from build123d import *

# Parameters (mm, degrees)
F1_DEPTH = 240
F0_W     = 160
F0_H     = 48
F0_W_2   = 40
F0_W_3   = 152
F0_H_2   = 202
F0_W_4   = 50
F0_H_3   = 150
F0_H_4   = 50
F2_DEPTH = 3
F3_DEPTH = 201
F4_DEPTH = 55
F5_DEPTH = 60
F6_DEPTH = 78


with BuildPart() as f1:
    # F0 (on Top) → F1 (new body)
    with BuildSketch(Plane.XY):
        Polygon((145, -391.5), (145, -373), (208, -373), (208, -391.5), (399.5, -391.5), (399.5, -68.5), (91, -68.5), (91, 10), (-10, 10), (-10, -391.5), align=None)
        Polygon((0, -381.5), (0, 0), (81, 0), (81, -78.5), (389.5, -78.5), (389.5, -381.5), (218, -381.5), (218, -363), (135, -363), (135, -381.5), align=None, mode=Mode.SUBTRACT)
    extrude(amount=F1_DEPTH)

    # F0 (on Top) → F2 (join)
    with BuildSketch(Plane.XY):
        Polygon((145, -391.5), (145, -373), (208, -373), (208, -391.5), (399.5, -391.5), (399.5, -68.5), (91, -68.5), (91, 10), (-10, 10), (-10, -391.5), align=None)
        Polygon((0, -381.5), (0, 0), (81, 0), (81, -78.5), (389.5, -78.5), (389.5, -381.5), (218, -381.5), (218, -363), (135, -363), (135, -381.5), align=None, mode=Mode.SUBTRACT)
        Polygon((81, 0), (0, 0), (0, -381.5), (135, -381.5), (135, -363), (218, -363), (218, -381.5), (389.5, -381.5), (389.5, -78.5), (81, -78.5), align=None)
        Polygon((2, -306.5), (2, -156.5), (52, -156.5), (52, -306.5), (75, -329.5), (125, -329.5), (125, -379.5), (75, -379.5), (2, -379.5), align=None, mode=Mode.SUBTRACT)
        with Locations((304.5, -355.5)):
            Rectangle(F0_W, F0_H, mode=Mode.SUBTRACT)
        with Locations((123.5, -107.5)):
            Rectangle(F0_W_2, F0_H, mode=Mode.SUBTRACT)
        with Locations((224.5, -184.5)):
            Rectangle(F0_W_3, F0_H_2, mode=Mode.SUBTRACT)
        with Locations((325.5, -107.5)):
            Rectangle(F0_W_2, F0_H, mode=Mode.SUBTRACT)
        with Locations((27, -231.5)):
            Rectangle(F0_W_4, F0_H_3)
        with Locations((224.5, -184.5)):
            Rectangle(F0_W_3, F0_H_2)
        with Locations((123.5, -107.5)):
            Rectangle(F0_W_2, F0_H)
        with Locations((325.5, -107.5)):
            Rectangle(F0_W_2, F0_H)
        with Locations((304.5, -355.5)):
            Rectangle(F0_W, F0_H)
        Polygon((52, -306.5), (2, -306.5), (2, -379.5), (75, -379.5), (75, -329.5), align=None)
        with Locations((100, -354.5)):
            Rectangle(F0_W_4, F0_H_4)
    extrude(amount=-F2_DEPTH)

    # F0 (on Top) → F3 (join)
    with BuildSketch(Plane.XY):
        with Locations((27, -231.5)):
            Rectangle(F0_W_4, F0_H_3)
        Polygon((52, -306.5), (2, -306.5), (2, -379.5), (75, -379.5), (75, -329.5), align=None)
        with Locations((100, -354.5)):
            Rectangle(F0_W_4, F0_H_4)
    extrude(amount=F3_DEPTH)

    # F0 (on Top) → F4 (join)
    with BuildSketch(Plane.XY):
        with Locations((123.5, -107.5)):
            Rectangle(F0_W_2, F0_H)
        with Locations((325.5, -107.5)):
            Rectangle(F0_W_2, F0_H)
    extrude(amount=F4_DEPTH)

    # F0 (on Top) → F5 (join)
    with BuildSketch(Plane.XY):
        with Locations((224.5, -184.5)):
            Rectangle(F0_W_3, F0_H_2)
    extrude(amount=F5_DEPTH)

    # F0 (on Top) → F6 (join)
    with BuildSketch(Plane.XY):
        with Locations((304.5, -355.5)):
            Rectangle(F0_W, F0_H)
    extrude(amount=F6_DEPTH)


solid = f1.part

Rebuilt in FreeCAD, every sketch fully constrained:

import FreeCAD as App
import Part
import Sketcher

V = App.Vector


def add_polygon(sketch, points):
    """Adds a closed chain of lines whose ends are joined by coincident constraints."""
    first, n = sketch.GeometryCount, len(points)
    for a, b in zip(points, points[1:] + points[:1]):
        sketch.addGeometry(Part.LineSegment(App.Vector(*a, 0), App.Vector(*b, 0)), False)
    for i in range(n):
        sketch.addConstraint(Sketcher.Constraint("Coincident", first + i, 2, first + (i + 1) % n, 1))

doc = App.newDocument("Part")
body = doc.addObject("PartDesign::Body", "Body")

sketch1 = doc.addObject("Sketcher::SketchObject", "Sketch")
body.addObject(sketch1)
sketch1.AttachmentSupport = (doc.XY_Plane, [""])
sketch1.MapMode = "FlatFace"
add_polygon(sketch1, [(145, -392), (145, -373), (208, -373), (208, -392), (400, -392), (400, -68), (91, -68), (91, 10), (-10, 10), (-10, -392)])
add_polygon(sketch1, [(135, -382), (0, -382), (0, 0), (81, 0), (81, -78), (390, -78), (390, -382), (218, -382), (218, -363), (135, -363)])
sketch1.addConstraint([
    Sketcher.Constraint("Vertical", 0),
    Sketcher.Constraint("Horizontal", 1),
    Sketcher.Constraint("Vertical", 2),
    Sketcher.Constraint("Horizontal", 3),
    Sketcher.Constraint("Vertical", 4),
    Sketcher.Constraint("Horizontal", 5),
    Sketcher.Constraint("Vertical", 6),
    Sketcher.Constraint("Horizontal", 7),
    Sketcher.Constraint("Vertical", 8),
    Sketcher.Constraint("Horizontal", 9),
    Sketcher.Constraint("Horizontal", 10),
    Sketcher.Constraint("Vertical", 11),
    Sketcher.Constraint("Horizontal", 12),
    Sketcher.Constraint("Vertical", 13),
    Sketcher.Constraint("Horizontal", 14),
    Sketcher.Constraint("Vertical", 15),
    Sketcher.Constraint("Horizontal", 16),
    Sketcher.Constraint("Vertical", 17),
    Sketcher.Constraint("Horizontal", 18),
    Sketcher.Constraint("Vertical", 19),
    Sketcher.Constraint("Coincident", 11, 2, -1, 1),
    Sketcher.Constraint("Horizontal", 3, 2, 8, 2),
    Sketcher.Constraint("Horizontal", 10, 2, 15, 2),
    Sketcher.Constraint("Equal", 5, 14),
    Sketcher.Constraint("Equal", 6, 13),
    Sketcher.Constraint("Equal", 2, 17),
    Sketcher.Constraint("DistanceX", 1, 1, 1, 2, 63.0),
    Sketcher.Constraint("DistanceX", 7, 2, 7, 1, 101.0),
    Sketcher.Constraint("DistanceX", 9, 1, 9, 2, 155.0),
    Sketcher.Constraint("DistanceX", 10, 2, 10, 1, 135.0),
    Sketcher.Constraint("DistanceX", 12, 1, 12, 2, 81.0),
    Sketcher.Constraint("DistanceX", 18, 2, 18, 1, 83.0),
    Sketcher.Constraint("DistanceY", 4, 1, 4, 2, 323.0),
    Sketcher.Constraint("DistanceY", 15, 2, 15, 1, 303.0),
    Sketcher.Constraint("DistanceX", 3, 1, 3, 2, 191.5),
    Sketcher.Constraint("DistanceY", 0, 1, 0, 2, 18.5),
    Sketcher.Constraint("DistanceY", 6, 1, 6, 2, 78.5),
    Sketcher.Constraint("DistanceX", -1, 1, 0, 2, 145.0),
    Sketcher.Constraint("DistanceY", 0, 2, -1, 1, 373.0),
])
pad1 = doc.addObject("PartDesign::Pad", "Pad")
body.addObject(pad1)
pad1.Profile = sketch1
pad1.Length = 240

sketch2 = doc.addObject("Sketcher::SketchObject", "Sketch001")
body.addObject(sketch2)
sketch2.AttachmentSupport = (doc.XY_Plane, [""])
sketch2.MapMode = "FlatFace"
add_polygon(sketch2, [(145, -392), (145, -373), (208, -373), (208, -392), (400, -392), (400, -68), (91, -68), (91, 10), (-10, 10), (-10, -392)])
sketch2.addConstraint([
    Sketcher.Constraint("Vertical", 0),
    Sketcher.Constraint("Horizontal", 1),
    Sketcher.Constraint("Vertical", 2),
    Sketcher.Constraint("Horizontal", 3),
    Sketcher.Constraint("Vertical", 4),
    Sketcher.Constraint("Horizontal", 5),
    Sketcher.Constraint("Vertical", 6),
    Sketcher.Constraint("Horizontal", 7),
    Sketcher.Constraint("Vertical", 8),
    Sketcher.Constraint("Horizontal", 9),
    Sketcher.Constraint("Horizontal", 3, 2, 8, 2),
    Sketcher.Constraint("DistanceX", 1, 1, 1, 2, 63.0),
    Sketcher.Constraint("DistanceX", 7, 2, 7, 1, 101.0),
    Sketcher.Constraint("DistanceX", 9, 1, 9, 2, 155.0),
    Sketcher.Constraint("DistanceY", 4, 1, 4, 2, 323.0),
    Sketcher.Constraint("DistanceX", 3, 1, 3, 2, 191.5),
    Sketcher.Constraint("DistanceY", 0, 1, 0, 2, 18.5),
    Sketcher.Constraint("DistanceY", 6, 1, 6, 2, 78.5),
    Sketcher.Constraint("DistanceX", -1, 1, 0, 2, 145.0),
    Sketcher.Constraint("DistanceY", 0, 2, -1, 1, 373.0),
])
pad2 = doc.addObject("PartDesign::Pad", "Pad001")
body.addObject(pad2)
pad2.Profile = sketch2
pad2.Length = 3
pad2.Reversed = True

sketch3 = doc.addObject("Sketcher::SketchObject", "Sketch002")
body.addObject(sketch3)
sketch3.AttachmentSupport = (doc.XY_Plane, [""])
sketch3.MapMode = "FlatFace"
add_polygon(sketch3, [(2, -156), (2, -380), (125, -380), (125, -330), (75, -330), (52, -306), (52, -156)])
sketch3.addConstraint([
    Sketcher.Constraint("Vertical", 0),
    Sketcher.Constraint("Horizontal", 1),
    Sketcher.Constraint("Vertical", 2),
    Sketcher.Constraint("Horizontal", 3),
    Sketcher.Constraint("Vertical", 5),
    Sketcher.Constraint("Horizontal", 6),
    Sketcher.Constraint("Equal", 3, 6),
    Sketcher.Constraint("Equal", 6, 2),
    Sketcher.Constraint("DistanceX", 1, 1, 1, 2, 123.0),
    Sketcher.Constraint("DistanceX", 3, 2, 3, 1, 50.0),
    Sketcher.Constraint("DistanceY", 0, 2, 0, 1, 223.0),
    Sketcher.Constraint("DistanceY", 5, 1, 5, 2, 150.0),
    Sketcher.Constraint("DistanceX", -1, 1, 0, 2, 2.0),
    Sketcher.Constraint("DistanceY", 0, 2, -1, 1, 379.5),
])
pad3 = doc.addObject("PartDesign::Pad", "Pad002")
body.addObject(pad3)
pad3.Profile = sketch3
pad3.Length = 201

sketch4 = doc.addObject("Sketcher::SketchObject", "Sketch003")
body.addObject(sketch4)
sketch4.AttachmentSupport = (doc.XY_Plane, [""])
sketch4.MapMode = "FlatFace"
add_polygon(sketch4, [(104, -84), (104, -132), (144, -132), (144, -84)])
add_polygon(sketch4, [(306, -84), (306, -132), (346, -132), (346, -84)])
sketch4.addConstraint([
    Sketcher.Constraint("Vertical", 0),
    Sketcher.Constraint("Horizontal", 1),
    Sketcher.Constraint("Vertical", 2),
    Sketcher.Constraint("Horizontal", 3),
    Sketcher.Constraint("Vertical", 4),
    Sketcher.Constraint("Horizontal", 5),
    Sketcher.Constraint("Vertical", 6),
    Sketcher.Constraint("Horizontal", 7),
    Sketcher.Constraint("Horizontal", 1, 2, 4, 2),
    Sketcher.Constraint("Horizontal", 3, 2, 6, 2),
    Sketcher.Constraint("Equal", 3, 5),
    Sketcher.Constraint("DistanceX", 1, 1, 1, 2, 40.0),
    Sketcher.Constraint("DistanceY", 0, 2, 0, 1, 48.0),
    Sketcher.Constraint("DistanceX", 1, 2, 4, 2, 162.0),
    Sketcher.Constraint("DistanceX", -1, 1, 0, 2, 103.5),
    Sketcher.Constraint("DistanceY", 0, 2, -1, 1, 131.5),
])
pad4 = doc.addObject("PartDesign::Pad", "Pad003")
body.addObject(pad4)
pad4.Profile = sketch4
pad4.Length = 55

sketch5 = doc.addObject("Sketcher::SketchObject", "Sketch004")
body.addObject(sketch5)
sketch5.AttachmentSupport = (doc.XY_Plane, [""])
sketch5.MapMode = "FlatFace"
add_polygon(sketch5, [(148, -84), (148, -286), (300, -286), (300, -84)])
sketch5.addConstraint([
    Sketcher.Constraint("Vertical", 0),
    Sketcher.Constraint("Horizontal", 1),
    Sketcher.Constraint("Vertical", 2),
    Sketcher.Constraint("Horizontal", 3),
    Sketcher.Constraint("DistanceX", 1, 1, 1, 2, 152.0),
    Sketcher.Constraint("DistanceY", 0, 2, 0, 1, 202.0),
    Sketcher.Constraint("DistanceX", -1, 1, 0, 2, 148.5),
    Sketcher.Constraint("DistanceY", 0, 2, -1, 1, 285.5),
])
pad5 = doc.addObject("PartDesign::Pad", "Pad004")
body.addObject(pad5)
pad5.Profile = sketch5
pad5.Length = 60

sketch6 = doc.addObject("Sketcher::SketchObject", "Sketch005")
body.addObject(sketch6)
sketch6.AttachmentSupport = (doc.XY_Plane, [""])
sketch6.MapMode = "FlatFace"
add_polygon(sketch6, [(224, -332), (224, -380), (384, -380), (384, -332)])
sketch6.addConstraint([
    Sketcher.Constraint("Vertical", 0),
    Sketcher.Constraint("Horizontal", 1),
    Sketcher.Constraint("Vertical", 2),
    Sketcher.Constraint("Horizontal", 3),
    Sketcher.Constraint("DistanceX", 1, 1, 1, 2, 160.0),
    Sketcher.Constraint("DistanceY", 0, 2, 0, 1, 48.0),
    Sketcher.Constraint("DistanceX", -1, 1, 0, 2, 224.5),
    Sketcher.Constraint("DistanceY", 0, 2, -1, 1, 379.5),
])
pad6 = doc.addObject("PartDesign::Pad", "Pad005")
body.addObject(pad6)
pad6.Profile = sketch6
pad6.Length = 78

doc.recompute()
